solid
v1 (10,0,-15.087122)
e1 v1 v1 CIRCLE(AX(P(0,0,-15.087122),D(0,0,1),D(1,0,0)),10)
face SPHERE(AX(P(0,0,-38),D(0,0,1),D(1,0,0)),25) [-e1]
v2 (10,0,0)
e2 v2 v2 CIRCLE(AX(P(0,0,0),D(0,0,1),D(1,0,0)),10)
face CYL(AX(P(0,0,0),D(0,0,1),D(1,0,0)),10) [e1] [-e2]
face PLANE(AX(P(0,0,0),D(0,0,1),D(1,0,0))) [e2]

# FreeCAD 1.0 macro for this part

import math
import FreeCAD as App
import Part
import Sketcher
Q = App.Units.Quantity

doc = App.newDocument("Part")
body = doc.addObject("PartDesign::Body", "Body")

sketch1 = body.newObject("Sketcher::SketchObject", "Sketch")
sketch1.AttachmentSupport = (doc.getObject("XZ_Plane"), [""])
sketch1.MapMode = "FlatFace"
sketch1.addGeometry([
    Part.LineSegment(App.Vector(0, -63, 0), App.Vector(0, 0, 0)),
    Part.LineSegment(App.Vector(0, 0, 0), App.Vector(10, 0, 0)),
    Part.LineSegment(App.Vector(10, 0, 0), App.Vector(10, -15, 0)),
    Part.ArcOfCircle(Part.Circle(App.Vector(0, -38, 0), App.Vector(0, 0, 1), 25), math.radians(-90), math.radians(66)),
], False)
sketch1.addConstraint([
    Sketcher.Constraint("Coincident", 0, 2, 1, 1),
    Sketcher.Constraint("Coincident", 1, 2, 2, 1),
    Sketcher.Constraint("Coincident", 2, 2, 3, 2),
    Sketcher.Constraint("Coincident", 3, 1, 0, 1),
    Sketcher.Constraint("Vertical", 0),
    Sketcher.Constraint("Horizontal", 1),
    Sketcher.Constraint("Vertical", 2),
    Sketcher.Constraint("Coincident", 0, 2, -1, 1),
    Sketcher.Constraint("PointOnObject", 3, 3, -2),
    Sketcher.Constraint("Radius", 3, Q("25 mm")),
    Sketcher.Constraint("DistanceX", 1, 1, 1, 2, Q("10 mm")),
    Sketcher.Constraint("DistanceY", 0, 1, 0, 2, Q("63 mm")),
])
revolution = body.newObject("PartDesign::Revolution", "Revolution")
revolution.Profile = sketch1
revolution.ReferenceAxis = (sketch1, ["V_Axis"])
revolution.Angle = 360

doc.recompute()
